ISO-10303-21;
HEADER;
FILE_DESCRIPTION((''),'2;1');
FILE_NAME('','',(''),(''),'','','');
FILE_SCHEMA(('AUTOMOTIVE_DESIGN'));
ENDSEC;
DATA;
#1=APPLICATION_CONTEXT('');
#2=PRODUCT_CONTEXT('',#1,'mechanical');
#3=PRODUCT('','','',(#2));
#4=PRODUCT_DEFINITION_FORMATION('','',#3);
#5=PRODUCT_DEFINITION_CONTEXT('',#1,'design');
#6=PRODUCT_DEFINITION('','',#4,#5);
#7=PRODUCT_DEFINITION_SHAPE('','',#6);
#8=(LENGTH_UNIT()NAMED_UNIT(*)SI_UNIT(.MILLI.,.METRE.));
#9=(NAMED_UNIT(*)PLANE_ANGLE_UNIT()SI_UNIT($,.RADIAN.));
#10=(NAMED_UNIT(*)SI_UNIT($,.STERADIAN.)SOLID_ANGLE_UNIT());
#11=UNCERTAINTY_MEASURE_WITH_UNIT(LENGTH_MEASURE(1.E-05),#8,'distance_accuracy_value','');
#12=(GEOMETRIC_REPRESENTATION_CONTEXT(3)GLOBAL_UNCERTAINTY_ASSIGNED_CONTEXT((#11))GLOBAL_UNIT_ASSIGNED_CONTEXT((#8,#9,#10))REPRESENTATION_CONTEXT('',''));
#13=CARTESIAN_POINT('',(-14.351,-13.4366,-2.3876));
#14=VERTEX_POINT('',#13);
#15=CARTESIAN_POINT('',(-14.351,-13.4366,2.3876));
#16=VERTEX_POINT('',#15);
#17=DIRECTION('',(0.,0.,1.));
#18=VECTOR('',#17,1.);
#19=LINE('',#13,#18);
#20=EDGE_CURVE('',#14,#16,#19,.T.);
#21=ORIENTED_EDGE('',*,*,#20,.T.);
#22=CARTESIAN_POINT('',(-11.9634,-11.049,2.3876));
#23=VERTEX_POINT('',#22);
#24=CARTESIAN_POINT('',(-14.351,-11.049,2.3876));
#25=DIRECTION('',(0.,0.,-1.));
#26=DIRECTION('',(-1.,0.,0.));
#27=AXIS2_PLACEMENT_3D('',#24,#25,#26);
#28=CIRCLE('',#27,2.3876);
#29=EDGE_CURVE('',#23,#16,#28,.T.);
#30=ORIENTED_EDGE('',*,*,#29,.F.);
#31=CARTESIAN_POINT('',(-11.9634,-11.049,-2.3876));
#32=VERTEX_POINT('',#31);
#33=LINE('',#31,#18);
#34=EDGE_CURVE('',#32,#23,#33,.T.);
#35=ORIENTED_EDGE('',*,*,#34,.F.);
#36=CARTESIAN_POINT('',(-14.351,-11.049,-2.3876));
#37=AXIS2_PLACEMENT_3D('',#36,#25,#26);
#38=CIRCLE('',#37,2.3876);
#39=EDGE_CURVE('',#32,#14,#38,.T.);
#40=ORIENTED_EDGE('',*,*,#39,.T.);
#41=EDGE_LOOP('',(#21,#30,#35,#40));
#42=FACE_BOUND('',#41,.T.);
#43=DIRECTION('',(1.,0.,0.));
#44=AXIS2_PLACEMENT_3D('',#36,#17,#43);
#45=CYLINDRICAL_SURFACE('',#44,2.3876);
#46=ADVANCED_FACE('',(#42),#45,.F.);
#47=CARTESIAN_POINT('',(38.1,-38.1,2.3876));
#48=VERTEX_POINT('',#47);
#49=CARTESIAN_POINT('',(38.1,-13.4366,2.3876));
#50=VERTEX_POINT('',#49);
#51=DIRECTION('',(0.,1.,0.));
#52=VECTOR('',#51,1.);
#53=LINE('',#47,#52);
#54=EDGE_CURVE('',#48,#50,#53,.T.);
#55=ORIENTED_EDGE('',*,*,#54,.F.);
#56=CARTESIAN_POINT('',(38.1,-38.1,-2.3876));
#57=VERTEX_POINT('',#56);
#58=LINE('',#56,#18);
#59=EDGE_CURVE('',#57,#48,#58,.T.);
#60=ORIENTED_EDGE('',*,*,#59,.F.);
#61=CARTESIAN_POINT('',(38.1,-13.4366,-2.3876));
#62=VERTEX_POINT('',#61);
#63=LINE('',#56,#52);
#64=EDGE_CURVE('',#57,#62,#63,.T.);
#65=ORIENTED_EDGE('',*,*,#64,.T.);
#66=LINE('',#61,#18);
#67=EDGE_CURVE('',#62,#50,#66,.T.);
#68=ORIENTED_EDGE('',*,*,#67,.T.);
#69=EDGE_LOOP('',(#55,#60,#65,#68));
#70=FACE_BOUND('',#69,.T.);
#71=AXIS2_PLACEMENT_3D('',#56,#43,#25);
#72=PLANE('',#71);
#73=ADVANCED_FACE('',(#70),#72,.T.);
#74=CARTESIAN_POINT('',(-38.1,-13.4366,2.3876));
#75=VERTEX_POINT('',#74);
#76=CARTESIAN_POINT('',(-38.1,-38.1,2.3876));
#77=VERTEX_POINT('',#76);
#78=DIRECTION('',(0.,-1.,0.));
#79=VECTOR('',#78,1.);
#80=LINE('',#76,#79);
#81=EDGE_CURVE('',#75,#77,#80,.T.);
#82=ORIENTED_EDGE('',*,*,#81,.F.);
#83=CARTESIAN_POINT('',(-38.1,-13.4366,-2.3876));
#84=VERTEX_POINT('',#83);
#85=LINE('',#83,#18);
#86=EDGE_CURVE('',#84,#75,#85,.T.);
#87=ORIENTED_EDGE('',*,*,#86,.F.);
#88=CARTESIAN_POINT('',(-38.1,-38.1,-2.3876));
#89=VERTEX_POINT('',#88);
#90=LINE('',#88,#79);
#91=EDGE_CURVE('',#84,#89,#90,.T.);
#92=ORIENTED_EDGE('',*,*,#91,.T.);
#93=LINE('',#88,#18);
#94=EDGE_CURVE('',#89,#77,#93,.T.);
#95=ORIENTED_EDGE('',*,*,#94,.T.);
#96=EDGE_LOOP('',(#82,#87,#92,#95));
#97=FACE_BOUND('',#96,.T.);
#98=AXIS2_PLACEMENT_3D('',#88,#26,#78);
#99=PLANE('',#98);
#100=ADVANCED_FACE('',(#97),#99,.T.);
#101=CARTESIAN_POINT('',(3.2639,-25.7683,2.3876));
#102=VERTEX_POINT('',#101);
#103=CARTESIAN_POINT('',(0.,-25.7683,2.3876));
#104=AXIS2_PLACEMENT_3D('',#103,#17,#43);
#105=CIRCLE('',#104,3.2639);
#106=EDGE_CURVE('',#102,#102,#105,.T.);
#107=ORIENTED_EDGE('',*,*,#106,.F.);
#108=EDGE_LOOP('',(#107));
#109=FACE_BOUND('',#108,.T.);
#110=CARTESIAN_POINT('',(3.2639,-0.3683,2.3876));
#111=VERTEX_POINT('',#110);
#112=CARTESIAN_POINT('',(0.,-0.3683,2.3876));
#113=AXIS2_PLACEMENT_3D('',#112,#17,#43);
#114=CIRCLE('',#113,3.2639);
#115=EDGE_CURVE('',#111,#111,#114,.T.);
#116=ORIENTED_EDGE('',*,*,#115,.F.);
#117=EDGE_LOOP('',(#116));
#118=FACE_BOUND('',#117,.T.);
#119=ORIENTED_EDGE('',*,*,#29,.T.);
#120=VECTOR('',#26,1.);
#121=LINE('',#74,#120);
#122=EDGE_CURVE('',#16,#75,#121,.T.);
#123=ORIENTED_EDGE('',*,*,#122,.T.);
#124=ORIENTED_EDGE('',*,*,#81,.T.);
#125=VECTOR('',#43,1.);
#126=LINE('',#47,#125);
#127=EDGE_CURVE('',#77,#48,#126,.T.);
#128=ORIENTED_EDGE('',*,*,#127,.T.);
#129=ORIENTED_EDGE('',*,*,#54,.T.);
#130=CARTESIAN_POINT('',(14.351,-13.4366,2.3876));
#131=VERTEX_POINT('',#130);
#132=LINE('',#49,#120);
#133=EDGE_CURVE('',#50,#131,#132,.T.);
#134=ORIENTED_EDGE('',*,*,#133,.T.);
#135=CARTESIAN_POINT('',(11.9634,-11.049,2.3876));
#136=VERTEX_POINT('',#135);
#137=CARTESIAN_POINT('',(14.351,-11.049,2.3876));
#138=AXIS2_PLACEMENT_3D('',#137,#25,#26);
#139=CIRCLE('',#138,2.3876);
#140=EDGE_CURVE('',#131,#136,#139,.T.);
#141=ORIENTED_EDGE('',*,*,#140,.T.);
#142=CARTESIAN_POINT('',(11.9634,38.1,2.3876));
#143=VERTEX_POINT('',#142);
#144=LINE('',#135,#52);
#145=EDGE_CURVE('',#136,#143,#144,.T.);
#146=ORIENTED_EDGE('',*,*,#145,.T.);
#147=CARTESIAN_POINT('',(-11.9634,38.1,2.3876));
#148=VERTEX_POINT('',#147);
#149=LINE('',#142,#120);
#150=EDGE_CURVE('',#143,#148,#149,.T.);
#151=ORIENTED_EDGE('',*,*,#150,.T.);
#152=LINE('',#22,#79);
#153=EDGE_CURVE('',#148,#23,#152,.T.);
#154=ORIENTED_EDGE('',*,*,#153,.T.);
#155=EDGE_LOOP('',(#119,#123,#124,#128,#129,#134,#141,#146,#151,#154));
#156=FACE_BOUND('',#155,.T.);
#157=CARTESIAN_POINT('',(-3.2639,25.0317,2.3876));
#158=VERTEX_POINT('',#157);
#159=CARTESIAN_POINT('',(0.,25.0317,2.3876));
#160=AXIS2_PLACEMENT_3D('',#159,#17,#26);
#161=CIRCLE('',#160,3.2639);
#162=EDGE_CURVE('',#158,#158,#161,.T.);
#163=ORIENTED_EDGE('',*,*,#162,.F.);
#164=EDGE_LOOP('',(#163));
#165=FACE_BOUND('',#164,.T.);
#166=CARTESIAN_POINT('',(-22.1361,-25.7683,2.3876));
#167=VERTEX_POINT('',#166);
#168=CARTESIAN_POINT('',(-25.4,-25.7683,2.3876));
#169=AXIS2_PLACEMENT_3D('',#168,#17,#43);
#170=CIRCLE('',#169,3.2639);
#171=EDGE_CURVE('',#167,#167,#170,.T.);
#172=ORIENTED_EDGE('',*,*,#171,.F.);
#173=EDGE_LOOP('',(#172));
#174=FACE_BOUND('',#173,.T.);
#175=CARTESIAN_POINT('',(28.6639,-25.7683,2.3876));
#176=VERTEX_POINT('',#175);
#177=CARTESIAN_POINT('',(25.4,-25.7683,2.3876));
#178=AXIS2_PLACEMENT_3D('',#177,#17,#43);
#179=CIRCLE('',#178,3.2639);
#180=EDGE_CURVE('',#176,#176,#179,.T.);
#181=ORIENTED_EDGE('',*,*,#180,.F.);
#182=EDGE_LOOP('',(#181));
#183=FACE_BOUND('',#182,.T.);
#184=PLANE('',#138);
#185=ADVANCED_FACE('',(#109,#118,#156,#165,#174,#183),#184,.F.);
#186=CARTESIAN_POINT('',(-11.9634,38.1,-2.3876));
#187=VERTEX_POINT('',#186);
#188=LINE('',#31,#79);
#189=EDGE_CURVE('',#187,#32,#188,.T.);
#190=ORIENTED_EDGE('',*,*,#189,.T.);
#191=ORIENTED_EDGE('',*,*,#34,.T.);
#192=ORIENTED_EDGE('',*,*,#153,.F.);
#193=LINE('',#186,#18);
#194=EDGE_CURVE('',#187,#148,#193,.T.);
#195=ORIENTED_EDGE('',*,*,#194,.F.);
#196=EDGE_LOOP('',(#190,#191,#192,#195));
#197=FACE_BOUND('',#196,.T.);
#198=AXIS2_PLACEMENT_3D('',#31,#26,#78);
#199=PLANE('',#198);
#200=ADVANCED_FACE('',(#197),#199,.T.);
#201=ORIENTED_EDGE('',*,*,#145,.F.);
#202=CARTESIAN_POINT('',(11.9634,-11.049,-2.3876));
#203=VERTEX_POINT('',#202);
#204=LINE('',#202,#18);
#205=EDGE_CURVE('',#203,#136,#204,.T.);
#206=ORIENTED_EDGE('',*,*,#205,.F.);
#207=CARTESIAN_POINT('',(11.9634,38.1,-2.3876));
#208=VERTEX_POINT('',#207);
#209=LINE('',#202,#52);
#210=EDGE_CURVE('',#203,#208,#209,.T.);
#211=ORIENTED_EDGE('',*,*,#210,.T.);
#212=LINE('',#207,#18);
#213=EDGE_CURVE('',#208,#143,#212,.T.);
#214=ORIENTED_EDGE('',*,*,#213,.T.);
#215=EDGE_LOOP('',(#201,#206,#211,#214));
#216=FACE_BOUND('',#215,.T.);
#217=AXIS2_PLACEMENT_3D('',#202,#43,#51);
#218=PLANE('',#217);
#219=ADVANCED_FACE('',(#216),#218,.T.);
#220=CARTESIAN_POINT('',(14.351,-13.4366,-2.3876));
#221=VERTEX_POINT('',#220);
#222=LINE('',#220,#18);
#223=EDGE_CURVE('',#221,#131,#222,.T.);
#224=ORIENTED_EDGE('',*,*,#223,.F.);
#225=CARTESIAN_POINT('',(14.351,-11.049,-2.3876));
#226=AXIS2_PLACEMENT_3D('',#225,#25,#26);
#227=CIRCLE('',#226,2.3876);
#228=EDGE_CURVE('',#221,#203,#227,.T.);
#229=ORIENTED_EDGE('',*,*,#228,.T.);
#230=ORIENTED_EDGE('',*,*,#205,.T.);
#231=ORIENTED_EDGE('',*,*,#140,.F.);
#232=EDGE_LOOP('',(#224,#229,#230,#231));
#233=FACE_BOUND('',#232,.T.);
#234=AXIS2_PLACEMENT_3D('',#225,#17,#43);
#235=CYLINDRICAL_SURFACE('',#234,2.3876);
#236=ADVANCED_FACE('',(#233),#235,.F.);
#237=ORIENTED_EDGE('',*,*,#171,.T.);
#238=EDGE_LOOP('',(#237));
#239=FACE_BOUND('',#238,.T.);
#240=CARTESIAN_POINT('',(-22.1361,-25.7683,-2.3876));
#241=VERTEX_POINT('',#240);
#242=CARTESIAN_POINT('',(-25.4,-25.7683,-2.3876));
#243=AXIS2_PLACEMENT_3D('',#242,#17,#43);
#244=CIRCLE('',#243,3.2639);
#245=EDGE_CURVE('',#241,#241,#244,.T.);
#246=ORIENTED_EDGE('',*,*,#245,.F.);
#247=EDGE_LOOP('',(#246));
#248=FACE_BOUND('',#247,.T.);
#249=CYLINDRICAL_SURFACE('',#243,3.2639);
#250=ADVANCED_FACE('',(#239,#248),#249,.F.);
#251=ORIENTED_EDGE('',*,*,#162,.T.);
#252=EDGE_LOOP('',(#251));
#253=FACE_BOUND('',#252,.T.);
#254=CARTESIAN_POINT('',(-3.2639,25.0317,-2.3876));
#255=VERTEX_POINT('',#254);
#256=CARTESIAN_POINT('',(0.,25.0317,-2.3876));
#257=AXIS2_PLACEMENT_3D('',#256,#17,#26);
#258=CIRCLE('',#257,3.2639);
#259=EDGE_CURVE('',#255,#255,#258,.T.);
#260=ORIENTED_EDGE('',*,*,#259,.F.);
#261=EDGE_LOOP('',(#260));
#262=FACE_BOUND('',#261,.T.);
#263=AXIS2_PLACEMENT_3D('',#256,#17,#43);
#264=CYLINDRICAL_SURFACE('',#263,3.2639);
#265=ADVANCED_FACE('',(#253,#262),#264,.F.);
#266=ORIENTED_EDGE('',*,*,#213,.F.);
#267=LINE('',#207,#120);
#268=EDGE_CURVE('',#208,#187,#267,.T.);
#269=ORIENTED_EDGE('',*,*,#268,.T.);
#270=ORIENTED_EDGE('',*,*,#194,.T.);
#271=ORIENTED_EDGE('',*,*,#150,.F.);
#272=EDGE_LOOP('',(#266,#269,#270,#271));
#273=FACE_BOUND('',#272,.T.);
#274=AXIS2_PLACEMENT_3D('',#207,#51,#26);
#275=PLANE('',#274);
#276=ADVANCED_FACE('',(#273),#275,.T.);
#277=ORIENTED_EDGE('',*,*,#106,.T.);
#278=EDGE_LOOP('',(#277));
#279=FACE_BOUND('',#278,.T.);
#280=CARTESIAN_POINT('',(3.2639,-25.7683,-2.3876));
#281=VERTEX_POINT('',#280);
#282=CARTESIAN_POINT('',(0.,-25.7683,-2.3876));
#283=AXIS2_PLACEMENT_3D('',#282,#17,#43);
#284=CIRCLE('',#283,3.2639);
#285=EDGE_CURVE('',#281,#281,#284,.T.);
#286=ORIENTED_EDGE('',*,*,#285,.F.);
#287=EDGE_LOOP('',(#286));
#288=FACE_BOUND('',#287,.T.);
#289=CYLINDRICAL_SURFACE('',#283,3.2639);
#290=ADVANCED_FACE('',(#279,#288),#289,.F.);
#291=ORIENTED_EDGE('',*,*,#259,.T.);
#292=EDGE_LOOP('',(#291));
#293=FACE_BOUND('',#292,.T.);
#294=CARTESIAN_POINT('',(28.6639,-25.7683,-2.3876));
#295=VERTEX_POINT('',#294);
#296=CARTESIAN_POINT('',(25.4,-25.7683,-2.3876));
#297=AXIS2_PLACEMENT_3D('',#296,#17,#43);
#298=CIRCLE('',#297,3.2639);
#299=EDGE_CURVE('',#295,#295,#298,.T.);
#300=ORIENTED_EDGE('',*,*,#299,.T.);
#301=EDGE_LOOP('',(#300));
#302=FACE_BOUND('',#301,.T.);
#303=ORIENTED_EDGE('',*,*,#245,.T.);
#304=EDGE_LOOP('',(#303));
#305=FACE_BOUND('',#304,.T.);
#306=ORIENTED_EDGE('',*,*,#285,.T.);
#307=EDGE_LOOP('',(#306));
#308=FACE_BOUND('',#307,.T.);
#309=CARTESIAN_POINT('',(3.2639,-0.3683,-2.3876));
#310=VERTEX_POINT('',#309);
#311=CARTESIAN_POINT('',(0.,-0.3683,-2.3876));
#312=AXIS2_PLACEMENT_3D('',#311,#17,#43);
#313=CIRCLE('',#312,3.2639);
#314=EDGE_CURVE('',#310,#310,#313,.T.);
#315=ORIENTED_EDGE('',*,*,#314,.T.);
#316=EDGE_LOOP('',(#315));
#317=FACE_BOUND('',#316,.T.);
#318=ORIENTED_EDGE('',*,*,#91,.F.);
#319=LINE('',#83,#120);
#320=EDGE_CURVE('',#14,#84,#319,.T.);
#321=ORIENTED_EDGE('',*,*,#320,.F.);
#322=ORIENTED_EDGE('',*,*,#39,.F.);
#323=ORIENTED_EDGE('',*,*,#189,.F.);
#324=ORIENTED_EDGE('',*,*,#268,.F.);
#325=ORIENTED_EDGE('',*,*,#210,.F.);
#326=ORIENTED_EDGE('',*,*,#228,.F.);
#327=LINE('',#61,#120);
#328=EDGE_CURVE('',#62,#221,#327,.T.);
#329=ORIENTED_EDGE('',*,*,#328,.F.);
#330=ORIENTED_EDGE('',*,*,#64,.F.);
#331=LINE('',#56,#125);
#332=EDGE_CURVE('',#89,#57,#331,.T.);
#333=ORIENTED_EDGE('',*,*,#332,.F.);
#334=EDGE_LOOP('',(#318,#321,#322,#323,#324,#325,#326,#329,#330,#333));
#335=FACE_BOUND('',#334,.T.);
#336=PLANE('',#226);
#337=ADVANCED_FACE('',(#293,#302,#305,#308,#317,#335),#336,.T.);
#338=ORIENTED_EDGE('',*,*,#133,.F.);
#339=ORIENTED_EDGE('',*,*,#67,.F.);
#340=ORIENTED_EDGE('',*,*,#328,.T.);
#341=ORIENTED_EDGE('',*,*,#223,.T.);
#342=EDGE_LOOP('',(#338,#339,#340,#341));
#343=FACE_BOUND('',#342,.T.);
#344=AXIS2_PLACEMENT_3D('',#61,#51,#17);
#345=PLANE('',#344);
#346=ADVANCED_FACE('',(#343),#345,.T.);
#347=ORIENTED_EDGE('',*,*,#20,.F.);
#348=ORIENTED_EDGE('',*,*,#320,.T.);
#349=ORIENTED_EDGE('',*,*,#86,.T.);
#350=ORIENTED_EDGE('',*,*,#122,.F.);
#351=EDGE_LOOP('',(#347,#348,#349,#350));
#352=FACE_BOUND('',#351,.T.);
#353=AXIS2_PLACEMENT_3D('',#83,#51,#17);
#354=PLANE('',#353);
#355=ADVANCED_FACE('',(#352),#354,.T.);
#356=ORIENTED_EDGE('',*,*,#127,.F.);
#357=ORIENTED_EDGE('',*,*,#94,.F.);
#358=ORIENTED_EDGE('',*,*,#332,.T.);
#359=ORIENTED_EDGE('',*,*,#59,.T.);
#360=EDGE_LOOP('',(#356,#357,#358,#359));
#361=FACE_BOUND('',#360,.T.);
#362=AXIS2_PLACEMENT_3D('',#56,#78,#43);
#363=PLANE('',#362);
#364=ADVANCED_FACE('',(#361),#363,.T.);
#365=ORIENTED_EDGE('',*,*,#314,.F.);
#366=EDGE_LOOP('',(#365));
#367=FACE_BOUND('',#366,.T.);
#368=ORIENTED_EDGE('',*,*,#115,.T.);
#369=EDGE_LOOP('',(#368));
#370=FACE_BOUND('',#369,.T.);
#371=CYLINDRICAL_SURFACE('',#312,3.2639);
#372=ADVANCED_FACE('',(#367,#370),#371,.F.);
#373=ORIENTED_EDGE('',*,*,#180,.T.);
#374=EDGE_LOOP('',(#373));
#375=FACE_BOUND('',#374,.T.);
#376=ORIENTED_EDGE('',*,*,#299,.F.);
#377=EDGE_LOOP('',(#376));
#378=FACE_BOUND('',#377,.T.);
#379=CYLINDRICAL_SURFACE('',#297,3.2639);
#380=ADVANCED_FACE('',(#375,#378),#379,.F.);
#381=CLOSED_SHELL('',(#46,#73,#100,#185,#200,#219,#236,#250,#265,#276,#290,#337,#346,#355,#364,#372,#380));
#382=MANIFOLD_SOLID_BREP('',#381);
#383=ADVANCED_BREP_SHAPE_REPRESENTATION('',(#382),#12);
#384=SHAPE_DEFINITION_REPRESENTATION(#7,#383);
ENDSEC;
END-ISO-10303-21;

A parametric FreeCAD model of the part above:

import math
import FreeCAD as App
import Part
import Sketcher
from FreeCAD import Vector
Q = App.Units.Quantity

doc = App.newDocument("Part")
params = doc.addObject("Spreadsheet::Sheet", "Params")
for row, (alias, value) in enumerate([
    ("sketch1_width", "3 in"),
    ("sketch1_radius", "0.094 in"),
    ("sketch1_width2", "0.935 in"),
    ("sketch1_height", "0.971 in"),
    ("pad1_length", "0.094 in"),
    ("pad1_length2", "0.094 in"),
    ("sketch2_diameter", "0.257 in"),
], start=1):
    params.set(f"A{row}", alias)
    params.set(f"B{row}", "=" + value)
    params.setAlias(f"B{row}", alias)

body = doc.addObject("PartDesign::Body", "Body")

# Sketch on XY plane
sketch1 = body.newObject("Sketcher::SketchObject", "Sketch")
sketch1.AttachmentSupport = (doc.getObject("XY_Plane"), [""])
sketch1.MapMode = "FlatFace"
sketch1.addGeometry(Part.LineSegment(Vector(-38.1, -38.1, 0), Vector(38.1, -38.1, 0)), False)
sketch1.addGeometry(Part.LineSegment(Vector(38.1, -38.1, 0), Vector(38.1, -13.4, 0)), False)
sketch1.addGeometry(Part.LineSegment(Vector(38.1, -13.4, 0), Vector(14.4, -13.4, 0)), False)
sketch1.addGeometry(Part.ArcOfCircle(Part.Circle(Vector(14.4, -11, 0), Vector(0, 0, 1), 2.4), math.radians(180), math.radians(270)), False)
sketch1.addGeometry(Part.LineSegment(Vector(12, -11, 0), Vector(12, 38.1, 0)), False)
sketch1.addGeometry(Part.LineSegment(Vector(12, 38.1, 0), Vector(-12, 38.1, 0)), False)
sketch1.addGeometry(Part.LineSegment(Vector(-12, 38.1, 0), Vector(-12, -11, 0)), False)
sketch1.addGeometry(Part.ArcOfCircle(Part.Circle(Vector(-14.4, -11, 0), Vector(0, 0, 1), 2.4), math.radians(-90), math.radians(0)), False)
sketch1.addGeometry(Part.LineSegment(Vector(-14.4, -13.4, 0), Vector(-38.1, -13.4, 0)), False)
sketch1.addGeometry(Part.LineSegment(Vector(-38.1, -13.4, 0), Vector(-38.1, -38.1, 0)), False)
sketch1.addConstraint(Sketcher.Constraint("Coincident", 0, 2, 1, 1))
sketch1.addConstraint(Sketcher.Constraint("Coincident", 1, 2, 2, 1))
sketch1.addConstraint(Sketcher.Constraint("Tangent", 2, 2, 3, 2))
sketch1.addConstraint(Sketcher.Constraint("Tangent", 3, 1, 4, 1))
sketch1.addConstraint(Sketcher.Constraint("Coincident", 4, 2, 5, 1))
sketch1.addConstraint(Sketcher.Constraint("Coincident", 5, 2, 6, 1))
sketch1.addConstraint(Sketcher.Constraint("Tangent", 6, 2, 7, 2))
sketch1.addConstraint(Sketcher.Constraint("Tangent", 7, 1, 8, 1))
sketch1.addConstraint(Sketcher.Constraint("Coincident", 8, 2, 9, 1))
sketch1.addConstraint(Sketcher.Constraint("Coincident", 9, 2, 0, 1))
sketch1.addConstraint(Sketcher.Constraint("Horizontal", 0))
sketch1.addConstraint(Sketcher.Constraint("Vertical", 1))
sketch1.addConstraint(Sketcher.Constraint("Horizontal", 2))
sketch1.addConstraint(Sketcher.Constraint("Vertical", 4))
sketch1.addConstraint(Sketcher.Constraint("Horizontal", 5))
sketch1.addConstraint(Sketcher.Constraint("Vertical", 6))
sketch1.addConstraint(Sketcher.Constraint("Horizontal", 8))
sketch1.addConstraint(Sketcher.Constraint("Vertical", 9))
sketch1.addConstraint(Sketcher.Constraint("Equal", 3, 7))
sketch1.addConstraint(Sketcher.Constraint("Symmetric", 3, 3, 7, 3, -2))
sketch1.addConstraint(Sketcher.Constraint("Equal", 2, 8))
sketch1.addConstraint(Sketcher.Constraint("DistanceX", 0, 1, 0, 2, Q("3 in")))
sketch1.addConstraint(Sketcher.Constraint("Radius", 3, Q("0.094 in")))
sketch1.addConstraint(Sketcher.Constraint("DistanceY", 0, 2, -1, 1, Q("1.5 in")))
sketch1.addConstraint(Sketcher.Constraint("DistanceY", -1, 1, 4, 2, Q("1.5 in")))
sketch1.addConstraint(Sketcher.Constraint("DistanceX", 2, 2, 2, 1, Q("0.935 in")))
sketch1.addConstraint(Sketcher.Constraint("DistanceY", 1, 1, 1, 2, Q("0.971 in")))
sketch1.setExpression("Constraints[21]", "Params.sketch1_width")
sketch1.setExpression("Constraints[22]", "Params.sketch1_radius")
sketch1.setExpression("Constraints[25]", "Params.sketch1_width2")
sketch1.setExpression("Constraints[26]", "Params.sketch1_height")
pad1 = body.newObject("PartDesign::Pad", "Pad")
pad1.Profile = sketch1
pad1.Type = "TwoLengths"
pad1.setExpression("Length", "Params.pad1_length")
pad1.setExpression("Length2", "Params.pad1_length2")

# Sketch on XY plane
sketch2 = body.newObject("Sketcher::SketchObject", "Sketch001")
sketch2.AttachmentSupport = (doc.getObject("XY_Plane"), [""])
sketch2.MapMode = "FlatFace"
sketch2.AttachmentOffset = App.Placement(Vector(0, 0, 0.094 * 25.4), App.Rotation())
sketch2.addGeometry(Part.Circle(Vector(25.4, -25.8, 0), Vector(0, 0, 1), 3.3), False)
sketch2.addGeometry(Part.Circle(Vector(0, -25.8, 0), Vector(0, 0, 1), 3.3), False)
sketch2.addGeometry(Part.Circle(Vector(-25.4, -25.8, 0), Vector(0, 0, 1), 3.3), False)
sketch2.addGeometry(Part.Circle(Vector(0, -0.4, 0), Vector(0, 0, 1), 3.3), False)
sketch2.addGeometry(Part.Circle(Vector(0, 25, 0), Vector(0, 0, 1), 3.3), False)
sketch2.addConstraint(Sketcher.Constraint("Equal", 0, 1))
sketch2.addConstraint(Sketcher.Constraint("Equal", 1, 2))
sketch2.addConstraint(Sketcher.Constraint("Equal", 2, 3))
sketch2.addConstraint(Sketcher.Constraint("Equal", 3, 4))
sketch2.addConstraint(Sketcher.Constraint("Symmetric", 0, 3, 2, 3, -2))
sketch2.addConstraint(Sketcher.Constraint("PointOnObject", 1, 3, -2))
sketch2.addConstraint(Sketcher.Constraint("PointOnObject", 3, 3, -2))
sketch2.addConstraint(Sketcher.Constraint("PointOnObject", 4, 3, -2))
sketch2.addConstraint(Sketcher.Constraint("Horizontal", 0, 3, 1, 3))
sketch2.addConstraint(Sketcher.Constraint("Diameter", 0, Q("0.257 in")))
sketch2.addConstraint(Sketcher.Constraint("DistanceX", -1, 1, 0, 3, Q("1 in")))
sketch2.addConstraint(Sketcher.Constraint("DistanceY", 1, 3, 3, 3, Q("1 in")))
sketch2.addConstraint(Sketcher.Constraint("DistanceY", 3, 3, 4, 3, Q("1 in")))
sketch2.addConstraint(Sketcher.Constraint("DistanceY", 0, 3, -1, 1, Q("1.0145 in")))
sketch2.setExpression("Constraints[9]", "Params.sketch2_diameter")
pocket1 = body.newObject("PartDesign::Pocket", "Pocket")
pocket1.Profile = sketch2
pocket1.Type = "ThroughAll"

doc.recompute()
